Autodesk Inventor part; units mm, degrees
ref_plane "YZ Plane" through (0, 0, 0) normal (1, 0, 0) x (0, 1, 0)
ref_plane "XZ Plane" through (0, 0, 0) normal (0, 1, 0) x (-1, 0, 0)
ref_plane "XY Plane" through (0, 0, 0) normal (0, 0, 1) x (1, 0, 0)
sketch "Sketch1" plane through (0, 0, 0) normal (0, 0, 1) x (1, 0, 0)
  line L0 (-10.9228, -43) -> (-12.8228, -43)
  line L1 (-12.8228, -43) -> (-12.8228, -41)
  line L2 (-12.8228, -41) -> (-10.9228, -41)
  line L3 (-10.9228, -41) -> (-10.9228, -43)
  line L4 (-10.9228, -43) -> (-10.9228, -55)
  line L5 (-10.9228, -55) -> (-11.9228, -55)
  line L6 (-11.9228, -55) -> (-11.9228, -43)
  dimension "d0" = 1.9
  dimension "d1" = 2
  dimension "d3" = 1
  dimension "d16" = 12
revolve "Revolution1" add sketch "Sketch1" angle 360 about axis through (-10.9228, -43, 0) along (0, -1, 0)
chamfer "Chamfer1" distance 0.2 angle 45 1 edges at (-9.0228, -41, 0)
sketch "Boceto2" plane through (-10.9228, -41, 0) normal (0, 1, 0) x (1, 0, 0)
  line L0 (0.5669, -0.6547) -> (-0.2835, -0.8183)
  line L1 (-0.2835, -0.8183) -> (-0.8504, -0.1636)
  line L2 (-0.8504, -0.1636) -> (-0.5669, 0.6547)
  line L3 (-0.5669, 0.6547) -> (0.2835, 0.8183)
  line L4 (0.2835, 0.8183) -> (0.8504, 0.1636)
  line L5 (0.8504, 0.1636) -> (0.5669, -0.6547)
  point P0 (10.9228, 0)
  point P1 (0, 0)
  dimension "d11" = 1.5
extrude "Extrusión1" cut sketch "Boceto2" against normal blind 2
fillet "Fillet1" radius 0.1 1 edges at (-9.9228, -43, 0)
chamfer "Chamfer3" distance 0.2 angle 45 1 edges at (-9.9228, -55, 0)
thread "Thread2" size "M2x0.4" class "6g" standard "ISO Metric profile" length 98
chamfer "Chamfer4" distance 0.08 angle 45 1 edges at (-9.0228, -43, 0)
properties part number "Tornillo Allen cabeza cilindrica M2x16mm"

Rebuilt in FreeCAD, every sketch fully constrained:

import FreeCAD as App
import Part
import Sketcher
Q = App.Units.Quantity


def edges_at(feature, points):
    """Names of the edges that pass closest to the given points."""
    edges = feature.Shape.Edges
    near = lambda p: min(range(len(edges)), key=lambda i: edges[i].distToShape(Part.Vertex(*p))[0])
    return sorted({f"Edge{near(p) + 1}" for p in points})

doc = App.newDocument("Part")
body = doc.addObject("PartDesign::Body", "Body")

# Sketch on XY plane
sketch1 = body.newObject("Sketcher::SketchObject", "Sketch")
sketch1.AttachmentSupport = (doc.getObject("XY_Plane"), [""])
sketch1.MapMode = "FlatFace"
sketch1.addGeometry([
    Part.LineSegment(App.Vector(-10.9228, -55, 0), App.Vector(-10.9228, -41, 0)),  # 0
    Part.LineSegment(App.Vector(-10.9228, -41, 0), App.Vector(-12.8228, -41, 0)),  # 1
    Part.LineSegment(App.Vector(-12.8228, -41, 0), App.Vector(-12.8228, -43, 0)),  # 2
    Part.LineSegment(App.Vector(-12.8228, -43, 0), App.Vector(-11.9228, -43, 0)),  # 3
    Part.LineSegment(App.Vector(-11.9228, -43, 0), App.Vector(-11.9228, -55, 0)),  # 4
    Part.LineSegment(App.Vector(-11.9228, -55, 0), App.Vector(-10.9228, -55, 0)),  # 5
], False)
sketch1.addGeometry(Part.LineSegment(App.Vector(-10.9228, -41, 0), App.Vector(-10.9228, -55, 0)), True)  # axis
sketch1.addConstraint([
    Sketcher.Constraint("Coincident", 0, 2, 1, 1),
    Sketcher.Constraint("Coincident", 1, 2, 2, 1),
    Sketcher.Constraint("Coincident", 2, 2, 3, 1),
    Sketcher.Constraint("Coincident", 3, 2, 4, 1),
    Sketcher.Constraint("Coincident", 4, 2, 5, 1),
    Sketcher.Constraint("Coincident", 5, 2, 0, 1),
    Sketcher.Constraint("Vertical", 0),
    Sketcher.Constraint("Horizontal", 1),
    Sketcher.Constraint("Vertical", 2),
    Sketcher.Constraint("Horizontal", 3),
    Sketcher.Constraint("Vertical", 4),
    Sketcher.Constraint("Horizontal", 5),
    Sketcher.Constraint("Vertical", 6),
    Sketcher.Constraint("Coincident", 6, 1, 0, 2),
    Sketcher.Constraint("Horizontal", 4, 2, 6, 2),
    Sketcher.Constraint("DistanceX", 5, 1, 5, 2, Q("1 mm")),
    Sketcher.Constraint("DistanceY", 2, 2, 2, 1, Q("2 mm")),
    Sketcher.Constraint("DistanceY", 4, 2, 4, 1, Q("12 mm")),
    Sketcher.Constraint("DistanceX", 1, 2, 1, 1, Q("1.9 mm")),
    Sketcher.Constraint("DistanceY", 0, 2, -1, 1, Q("41 mm")),
    Sketcher.Constraint("DistanceX", 0, 2, -1, 1, Q("10.9228 mm")),
])
revolution = body.newObject("PartDesign::Revolution", "Revolution")
revolution.Profile = sketch1
revolution.ReferenceAxis = (sketch1, ["Axis0"])
revolution.Angle = 360
doc.recompute()

chamfer = body.newObject("PartDesign::Chamfer", "Chamfer")
chamfer.Base = (revolution, edges_at(revolution, [(-9.023, -41, 0)]))
chamfer.Size = 0.2

# Sketch on XZ plane
sketch2 = body.newObject("Sketcher::SketchObject", "Sketch001")
sketch2.AttachmentSupport = (doc.getObject("XZ_Plane"), [""])
sketch2.MapMode = "FlatFace"
sketch2.AttachmentOffset = App.Placement(App.Vector(0, 0, 41), App.Rotation())
sketch2.addGeometry([
    Part.LineSegment(App.Vector(-11.2063, 0.8183, 0), App.Vector(-10.3559, 0.6547, 0)),  # 0
    Part.LineSegment(App.Vector(-10.3559, 0.6547, 0), App.Vector(-10.0724, -0.1636, 0)),  # 1
    Part.LineSegment(App.Vector(-10.0724, -0.1636, 0), App.Vector(-10.6393, -0.8183, 0)),  # 2
    Part.LineSegment(App.Vector(-10.6393, -0.8183, 0), App.Vector(-11.4897, -0.6547, 0)),  # 3
    Part.LineSegment(App.Vector(-11.4897, -0.6547, 0), App.Vector(-11.7732, 0.1636, 0)),  # 4
    Part.LineSegment(App.Vector(-11.7732, 0.1636, 0), App.Vector(-11.2063, 0.8183, 0)),  # 5
], False)
sketch2.addConstraint([
    Sketcher.Constraint("Coincident", 0, 2, 1, 1),
    Sketcher.Constraint("Coincident", 1, 2, 2, 1),
    Sketcher.Constraint("Coincident", 2, 2, 3, 1),
    Sketcher.Constraint("Coincident", 3, 2, 4, 1),
    Sketcher.Constraint("Coincident", 4, 2, 5, 1),
    Sketcher.Constraint("Coincident", 5, 2, 0, 1),
    Sketcher.Constraint("Parallel", 0, 3),
    Sketcher.Constraint("Parallel", 1, 4),
    Sketcher.Constraint("Parallel", 2, 5),
    Sketcher.Constraint("Equal", 0, 1),
    Sketcher.Constraint("Equal", 1, 2),
    Sketcher.Constraint("Equal", 2, 3),
    Sketcher.Constraint("Angle", 0, Q("-10.8895 deg")),
    Sketcher.Constraint("Angle", 2, Q("-130.889 deg")),
    Sketcher.Constraint("Distance", 0, Q("0.866 mm")),
    Sketcher.Constraint("DistanceX", 0, 2, -1, 1, Q("10.356 mm")),
    Sketcher.Constraint("DistanceY", 2, 2, 0, 2, Q("1.473 mm")),
    Sketcher.Constraint("DistanceY", -1, 1, 0, 2, Q("0.6547 mm")),
])
pocket1 = body.newObject("PartDesign::Pocket", "Pocket")
pocket1.Profile = sketch2
pocket1.Length = 2
pocket1.Reversed = True
doc.recompute()

fillet = body.newObject("PartDesign::Fillet", "Fillet")
fillet.Base = (pocket1, edges_at(pocket1, [(-9.923, -43, 0)]))
fillet.Radius = 0.1
doc.recompute()

chamfer2 = body.newObject("PartDesign::Chamfer", "Chamfer001")
chamfer2.Base = (fillet, edges_at(fillet, [(-9.923, -55, 0)]))
chamfer2.Size = 0.2
doc.recompute()

chamfer3 = body.newObject("PartDesign::Chamfer", "Chamfer002")
chamfer3.Base = (chamfer2, edges_at(chamfer2, [(-9.023, -43, 0)]))
chamfer3.Size = 0.08

doc.recompute()
